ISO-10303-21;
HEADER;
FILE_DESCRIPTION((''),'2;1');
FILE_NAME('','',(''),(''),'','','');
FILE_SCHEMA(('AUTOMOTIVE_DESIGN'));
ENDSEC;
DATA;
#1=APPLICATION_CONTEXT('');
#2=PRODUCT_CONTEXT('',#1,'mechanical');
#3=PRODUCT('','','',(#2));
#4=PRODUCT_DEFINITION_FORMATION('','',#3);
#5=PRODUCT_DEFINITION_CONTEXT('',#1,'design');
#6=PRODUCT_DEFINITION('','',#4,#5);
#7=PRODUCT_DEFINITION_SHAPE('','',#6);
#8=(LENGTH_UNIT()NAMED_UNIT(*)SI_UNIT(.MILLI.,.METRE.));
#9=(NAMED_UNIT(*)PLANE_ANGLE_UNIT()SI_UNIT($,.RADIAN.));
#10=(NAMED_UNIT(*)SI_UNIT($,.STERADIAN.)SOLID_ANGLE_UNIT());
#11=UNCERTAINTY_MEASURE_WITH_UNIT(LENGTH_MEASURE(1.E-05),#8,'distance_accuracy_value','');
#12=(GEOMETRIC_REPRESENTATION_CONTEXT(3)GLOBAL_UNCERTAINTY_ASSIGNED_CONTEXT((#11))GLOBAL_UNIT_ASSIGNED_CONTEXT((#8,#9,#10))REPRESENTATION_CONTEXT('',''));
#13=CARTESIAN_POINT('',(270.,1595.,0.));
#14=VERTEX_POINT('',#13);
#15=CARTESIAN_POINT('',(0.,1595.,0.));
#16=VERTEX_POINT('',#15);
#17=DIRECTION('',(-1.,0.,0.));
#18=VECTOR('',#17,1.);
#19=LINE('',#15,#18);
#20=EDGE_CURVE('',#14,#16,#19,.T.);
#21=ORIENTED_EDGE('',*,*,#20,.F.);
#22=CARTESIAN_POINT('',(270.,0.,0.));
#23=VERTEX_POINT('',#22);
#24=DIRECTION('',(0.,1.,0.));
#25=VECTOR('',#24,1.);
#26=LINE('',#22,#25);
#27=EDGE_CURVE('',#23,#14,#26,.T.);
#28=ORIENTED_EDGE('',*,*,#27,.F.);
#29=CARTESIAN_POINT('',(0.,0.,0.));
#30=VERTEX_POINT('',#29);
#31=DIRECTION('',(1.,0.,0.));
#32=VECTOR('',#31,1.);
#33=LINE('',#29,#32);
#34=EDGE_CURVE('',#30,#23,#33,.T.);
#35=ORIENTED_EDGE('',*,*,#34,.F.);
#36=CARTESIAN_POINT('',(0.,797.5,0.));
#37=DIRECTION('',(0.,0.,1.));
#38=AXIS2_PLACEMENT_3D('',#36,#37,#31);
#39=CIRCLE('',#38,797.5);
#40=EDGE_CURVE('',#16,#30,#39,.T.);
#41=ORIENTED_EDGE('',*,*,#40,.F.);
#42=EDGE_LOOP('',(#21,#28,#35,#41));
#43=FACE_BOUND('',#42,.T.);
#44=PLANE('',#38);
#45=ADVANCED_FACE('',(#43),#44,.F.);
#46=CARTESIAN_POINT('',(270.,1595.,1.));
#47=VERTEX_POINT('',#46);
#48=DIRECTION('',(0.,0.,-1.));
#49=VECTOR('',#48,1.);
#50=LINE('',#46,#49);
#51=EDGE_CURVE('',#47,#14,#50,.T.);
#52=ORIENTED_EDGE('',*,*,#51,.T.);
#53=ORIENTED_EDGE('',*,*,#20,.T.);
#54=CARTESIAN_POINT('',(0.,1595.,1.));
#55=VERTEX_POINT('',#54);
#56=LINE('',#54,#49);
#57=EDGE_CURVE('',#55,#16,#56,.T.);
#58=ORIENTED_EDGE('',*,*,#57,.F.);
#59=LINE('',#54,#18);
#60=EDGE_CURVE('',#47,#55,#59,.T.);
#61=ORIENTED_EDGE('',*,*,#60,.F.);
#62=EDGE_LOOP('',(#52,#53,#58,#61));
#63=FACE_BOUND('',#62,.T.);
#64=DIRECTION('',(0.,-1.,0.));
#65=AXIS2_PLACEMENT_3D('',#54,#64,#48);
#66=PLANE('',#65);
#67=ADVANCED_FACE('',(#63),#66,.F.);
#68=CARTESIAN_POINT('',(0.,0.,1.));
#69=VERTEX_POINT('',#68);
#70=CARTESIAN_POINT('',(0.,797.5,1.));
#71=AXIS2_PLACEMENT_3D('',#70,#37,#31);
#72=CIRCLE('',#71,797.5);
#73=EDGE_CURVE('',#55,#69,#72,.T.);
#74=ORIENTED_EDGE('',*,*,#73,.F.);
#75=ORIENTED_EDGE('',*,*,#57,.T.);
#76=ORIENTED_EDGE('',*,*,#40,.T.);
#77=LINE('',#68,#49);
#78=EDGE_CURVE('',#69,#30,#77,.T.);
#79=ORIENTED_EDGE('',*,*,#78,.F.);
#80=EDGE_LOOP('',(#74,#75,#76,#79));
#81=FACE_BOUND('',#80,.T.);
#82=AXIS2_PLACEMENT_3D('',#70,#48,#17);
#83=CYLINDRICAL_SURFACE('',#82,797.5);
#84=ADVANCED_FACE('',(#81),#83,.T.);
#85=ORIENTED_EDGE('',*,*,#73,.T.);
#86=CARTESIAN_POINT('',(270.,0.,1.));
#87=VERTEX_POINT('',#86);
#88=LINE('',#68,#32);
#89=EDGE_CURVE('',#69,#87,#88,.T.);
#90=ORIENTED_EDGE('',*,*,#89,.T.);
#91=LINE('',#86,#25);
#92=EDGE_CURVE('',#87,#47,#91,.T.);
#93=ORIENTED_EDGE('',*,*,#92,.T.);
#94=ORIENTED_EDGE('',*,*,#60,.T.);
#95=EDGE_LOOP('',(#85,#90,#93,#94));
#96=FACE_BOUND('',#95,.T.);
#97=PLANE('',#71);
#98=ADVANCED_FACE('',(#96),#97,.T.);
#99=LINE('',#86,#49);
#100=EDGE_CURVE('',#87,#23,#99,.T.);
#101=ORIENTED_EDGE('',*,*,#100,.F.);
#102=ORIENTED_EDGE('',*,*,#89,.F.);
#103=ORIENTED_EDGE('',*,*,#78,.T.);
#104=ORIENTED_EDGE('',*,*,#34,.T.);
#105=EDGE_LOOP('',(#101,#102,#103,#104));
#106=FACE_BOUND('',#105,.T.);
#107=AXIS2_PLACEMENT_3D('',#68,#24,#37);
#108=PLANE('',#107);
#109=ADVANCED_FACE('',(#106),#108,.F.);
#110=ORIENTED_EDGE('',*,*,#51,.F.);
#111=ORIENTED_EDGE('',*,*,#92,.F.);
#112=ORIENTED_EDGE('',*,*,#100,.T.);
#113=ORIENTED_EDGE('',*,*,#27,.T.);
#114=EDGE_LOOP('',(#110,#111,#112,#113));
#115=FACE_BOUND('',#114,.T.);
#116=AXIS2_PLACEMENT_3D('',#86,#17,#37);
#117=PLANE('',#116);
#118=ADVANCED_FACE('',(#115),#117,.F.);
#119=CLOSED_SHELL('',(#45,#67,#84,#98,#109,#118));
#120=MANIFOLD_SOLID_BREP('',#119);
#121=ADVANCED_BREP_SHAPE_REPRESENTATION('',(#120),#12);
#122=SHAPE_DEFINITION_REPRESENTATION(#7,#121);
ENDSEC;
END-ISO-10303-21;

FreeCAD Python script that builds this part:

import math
import FreeCAD as App
import Part
import Sketcher

doc = App.newDocument("Part")
params = doc.addObject("Spreadsheet::Sheet", "Params")
for row, (alias, value) in enumerate([
    ("sketch1_radius", "797.5 mm"),
    ("sketch1_width", "270 mm"),
    ("pad1_length", "1 mm"),
], start=1):
    params.set(f"A{row}", alias)
    params.set(f"B{row}", "=" + value)
    params.setAlias(f"B{row}", alias)

body = doc.addObject("PartDesign::Body", "Body")

# Sketch on XY plane
sketch1 = body.newObject("Sketcher::SketchObject", "Sketch")
sketch1.AttachmentSupport = (doc.getObject("XY_Plane"), [""])
sketch1.MapMode = "FlatFace"
sketch1.addGeometry([
    Part.LineSegment(App.Vector(0, 0, 0), App.Vector(270, 0, 0)),
    Part.LineSegment(App.Vector(270, 0, 0), App.Vector(270, 1595, 0)),
    Part.LineSegment(App.Vector(270, 1595, 0), App.Vector(0, 1595, 0)),
    Part.ArcOfCircle(Part.Circle(App.Vector(0, 798, 0), App.Vector(0, 0, 1), 798), math.radians(90), math.radians(270)),
], False)
sketch1.addConstraint([
    Sketcher.Constraint("Coincident", 0, 2, 1, 1),
    Sketcher.Constraint("Coincident", 1, 2, 2, 1),
    Sketcher.Constraint("Tangent", 2, 2, 3, 1),
    Sketcher.Constraint("Tangent", 3, 2, 0, 1),
    Sketcher.Constraint("Horizontal", 0),
    Sketcher.Constraint("Vertical", 1),
    Sketcher.Constraint("Horizontal", 2),
    Sketcher.Constraint("PointOnObject", 3, 3, -2),
    Sketcher.Constraint("PointOnObject", 0, 2, -1),
    Sketcher.Constraint("Radius", 3, 797.5),
    Sketcher.Constraint("DistanceX", 0, 1, 0, 2, 270.0),
])
sketch1.setExpression("Constraints[9]", "Params.sketch1_radius")
sketch1.setExpression("Constraints[10]", "Params.sketch1_width")
pad1 = body.newObject("PartDesign::Pad", "Pad")
pad1.Profile = sketch1
pad1.setExpression("Length", "Params.pad1_length")

doc.recompute()
